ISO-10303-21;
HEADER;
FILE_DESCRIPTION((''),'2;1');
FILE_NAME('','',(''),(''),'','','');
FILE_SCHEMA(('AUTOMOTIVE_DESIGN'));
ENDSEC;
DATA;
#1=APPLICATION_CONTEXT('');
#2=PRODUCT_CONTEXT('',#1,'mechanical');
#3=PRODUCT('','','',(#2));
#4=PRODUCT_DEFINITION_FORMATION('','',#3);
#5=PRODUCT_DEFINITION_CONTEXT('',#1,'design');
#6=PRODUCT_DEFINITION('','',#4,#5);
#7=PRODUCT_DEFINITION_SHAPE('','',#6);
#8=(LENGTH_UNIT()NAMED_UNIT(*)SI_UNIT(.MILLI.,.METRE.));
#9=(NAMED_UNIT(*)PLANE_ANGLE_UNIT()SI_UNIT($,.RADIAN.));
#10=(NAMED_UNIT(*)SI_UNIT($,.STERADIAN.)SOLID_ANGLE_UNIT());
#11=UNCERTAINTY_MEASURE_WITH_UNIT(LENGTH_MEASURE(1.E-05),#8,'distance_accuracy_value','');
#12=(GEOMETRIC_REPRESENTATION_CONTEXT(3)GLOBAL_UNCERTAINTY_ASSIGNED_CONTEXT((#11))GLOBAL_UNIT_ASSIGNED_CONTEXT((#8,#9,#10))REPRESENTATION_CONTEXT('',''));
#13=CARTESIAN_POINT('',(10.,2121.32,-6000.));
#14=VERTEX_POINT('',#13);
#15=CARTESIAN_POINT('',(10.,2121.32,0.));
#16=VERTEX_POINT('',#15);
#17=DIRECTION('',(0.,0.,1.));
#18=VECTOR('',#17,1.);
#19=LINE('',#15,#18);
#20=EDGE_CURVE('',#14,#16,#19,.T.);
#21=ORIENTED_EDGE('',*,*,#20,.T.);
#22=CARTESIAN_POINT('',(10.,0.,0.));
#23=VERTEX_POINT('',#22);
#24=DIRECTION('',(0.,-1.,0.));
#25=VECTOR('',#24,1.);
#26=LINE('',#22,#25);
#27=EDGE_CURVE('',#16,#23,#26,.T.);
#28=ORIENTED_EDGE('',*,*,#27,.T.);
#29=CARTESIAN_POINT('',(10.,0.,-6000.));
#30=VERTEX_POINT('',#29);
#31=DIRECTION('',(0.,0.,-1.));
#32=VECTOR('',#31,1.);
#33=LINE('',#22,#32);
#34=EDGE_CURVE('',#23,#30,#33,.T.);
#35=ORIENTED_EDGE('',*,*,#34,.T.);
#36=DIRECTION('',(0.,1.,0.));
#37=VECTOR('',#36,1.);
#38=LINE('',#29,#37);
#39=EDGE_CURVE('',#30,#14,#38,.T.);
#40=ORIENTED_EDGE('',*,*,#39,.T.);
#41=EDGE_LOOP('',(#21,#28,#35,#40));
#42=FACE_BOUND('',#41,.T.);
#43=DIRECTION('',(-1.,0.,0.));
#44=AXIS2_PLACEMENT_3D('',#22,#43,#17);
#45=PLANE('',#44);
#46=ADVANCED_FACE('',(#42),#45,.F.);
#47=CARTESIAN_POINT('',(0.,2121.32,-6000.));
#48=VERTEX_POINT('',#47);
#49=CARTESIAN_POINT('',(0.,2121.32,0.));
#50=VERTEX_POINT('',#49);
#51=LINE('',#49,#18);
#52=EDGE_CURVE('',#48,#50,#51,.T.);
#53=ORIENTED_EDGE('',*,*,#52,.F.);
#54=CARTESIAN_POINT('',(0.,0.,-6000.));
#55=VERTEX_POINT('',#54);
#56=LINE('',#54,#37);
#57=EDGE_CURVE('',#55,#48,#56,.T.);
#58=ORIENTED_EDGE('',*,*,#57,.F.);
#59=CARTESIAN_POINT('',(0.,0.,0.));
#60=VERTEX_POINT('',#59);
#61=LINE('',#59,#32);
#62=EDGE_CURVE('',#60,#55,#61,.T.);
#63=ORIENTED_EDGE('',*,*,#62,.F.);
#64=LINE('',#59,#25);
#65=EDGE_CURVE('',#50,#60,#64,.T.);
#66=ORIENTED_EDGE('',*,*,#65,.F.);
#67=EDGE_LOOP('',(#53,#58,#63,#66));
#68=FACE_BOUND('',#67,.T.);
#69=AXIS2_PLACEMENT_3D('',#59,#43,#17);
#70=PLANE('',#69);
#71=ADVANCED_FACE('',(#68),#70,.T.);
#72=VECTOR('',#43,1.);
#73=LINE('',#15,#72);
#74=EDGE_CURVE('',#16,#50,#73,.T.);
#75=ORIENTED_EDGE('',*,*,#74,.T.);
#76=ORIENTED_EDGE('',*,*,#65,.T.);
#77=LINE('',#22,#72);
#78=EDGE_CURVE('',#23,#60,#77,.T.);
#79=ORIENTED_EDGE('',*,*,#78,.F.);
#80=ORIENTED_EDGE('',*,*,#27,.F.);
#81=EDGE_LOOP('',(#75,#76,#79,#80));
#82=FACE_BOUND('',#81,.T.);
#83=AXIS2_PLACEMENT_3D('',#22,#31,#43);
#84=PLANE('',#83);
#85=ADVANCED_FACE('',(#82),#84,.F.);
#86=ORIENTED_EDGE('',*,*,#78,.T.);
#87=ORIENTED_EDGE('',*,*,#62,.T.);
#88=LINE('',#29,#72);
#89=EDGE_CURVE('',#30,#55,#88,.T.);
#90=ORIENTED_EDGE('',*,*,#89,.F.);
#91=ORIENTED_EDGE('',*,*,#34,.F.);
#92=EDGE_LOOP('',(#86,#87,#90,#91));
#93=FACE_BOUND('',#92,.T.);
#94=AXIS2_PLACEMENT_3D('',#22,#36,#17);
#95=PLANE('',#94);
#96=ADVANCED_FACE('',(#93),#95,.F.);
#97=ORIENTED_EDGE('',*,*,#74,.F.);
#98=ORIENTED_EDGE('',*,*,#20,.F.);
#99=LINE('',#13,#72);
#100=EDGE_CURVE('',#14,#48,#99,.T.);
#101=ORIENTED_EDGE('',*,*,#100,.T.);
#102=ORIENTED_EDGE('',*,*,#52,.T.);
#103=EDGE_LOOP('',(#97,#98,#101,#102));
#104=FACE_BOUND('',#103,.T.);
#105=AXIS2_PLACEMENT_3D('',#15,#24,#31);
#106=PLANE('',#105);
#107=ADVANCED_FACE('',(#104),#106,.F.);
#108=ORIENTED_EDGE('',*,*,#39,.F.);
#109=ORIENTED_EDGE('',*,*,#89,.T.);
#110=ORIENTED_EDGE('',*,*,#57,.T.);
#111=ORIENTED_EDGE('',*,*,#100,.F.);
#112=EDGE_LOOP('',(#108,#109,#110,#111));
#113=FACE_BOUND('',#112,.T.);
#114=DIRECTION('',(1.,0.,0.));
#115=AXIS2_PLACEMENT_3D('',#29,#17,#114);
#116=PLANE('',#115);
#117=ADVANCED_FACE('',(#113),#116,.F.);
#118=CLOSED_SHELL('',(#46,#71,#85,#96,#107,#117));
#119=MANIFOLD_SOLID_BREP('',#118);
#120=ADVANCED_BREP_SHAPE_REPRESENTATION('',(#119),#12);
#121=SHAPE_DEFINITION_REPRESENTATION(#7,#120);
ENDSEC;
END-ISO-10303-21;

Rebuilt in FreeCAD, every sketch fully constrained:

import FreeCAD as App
import Part
import Sketcher

V = App.Vector

doc = App.newDocument("Part")
body = doc.addObject("PartDesign::Body", "Body")

sketch1 = body.newObject("Sketcher::SketchObject", "Sketch")
sketch1.AttachmentSupport = (doc.getObject("YZ_Plane"), [""])
sketch1.MapMode = "FlatFace"
sketch1.addGeometry(Part.LineSegment(V(2121, 0, 0), V(0, 0, 0)), False)
sketch1.addGeometry(Part.LineSegment(V(0, 0, 0), V(0, -6000, 0)), False)
sketch1.addGeometry(Part.LineSegment(V(0, -6000, 0), V(2121, -6000, 0)), False)
sketch1.addGeometry(Part.LineSegment(V(2121, -6000, 0), V(2121, 0, 0)), False)
sketch1.addConstraint(Sketcher.Constraint("Coincident", 0, 2, 1, 1))
sketch1.addConstraint(Sketcher.Constraint("Coincident", 1, 2, 2, 1))
sketch1.addConstraint(Sketcher.Constraint("Coincident", 2, 2, 3, 1))
sketch1.addConstraint(Sketcher.Constraint("Coincident", 3, 2, 0, 1))
sketch1.addConstraint(Sketcher.Constraint("Horizontal", 0))
sketch1.addConstraint(Sketcher.Constraint("Vertical", 1))
sketch1.addConstraint(Sketcher.Constraint("Horizontal", 2))
sketch1.addConstraint(Sketcher.Constraint("Vertical", 3))
sketch1.addConstraint(Sketcher.Constraint("Coincident", 0, 2, -1, 1))
sketch1.addConstraint(Sketcher.Constraint("DistanceY", 1, 2, 1, 1, 6000.0))
sketch1.addConstraint(Sketcher.Constraint("DistanceX", 0, 2, 0, 1, 2121.32))
pad1 = body.newObject("PartDesign::Pad", "Pad")
pad1.Profile = sketch1
pad1.Length = 10

doc.recompute()
